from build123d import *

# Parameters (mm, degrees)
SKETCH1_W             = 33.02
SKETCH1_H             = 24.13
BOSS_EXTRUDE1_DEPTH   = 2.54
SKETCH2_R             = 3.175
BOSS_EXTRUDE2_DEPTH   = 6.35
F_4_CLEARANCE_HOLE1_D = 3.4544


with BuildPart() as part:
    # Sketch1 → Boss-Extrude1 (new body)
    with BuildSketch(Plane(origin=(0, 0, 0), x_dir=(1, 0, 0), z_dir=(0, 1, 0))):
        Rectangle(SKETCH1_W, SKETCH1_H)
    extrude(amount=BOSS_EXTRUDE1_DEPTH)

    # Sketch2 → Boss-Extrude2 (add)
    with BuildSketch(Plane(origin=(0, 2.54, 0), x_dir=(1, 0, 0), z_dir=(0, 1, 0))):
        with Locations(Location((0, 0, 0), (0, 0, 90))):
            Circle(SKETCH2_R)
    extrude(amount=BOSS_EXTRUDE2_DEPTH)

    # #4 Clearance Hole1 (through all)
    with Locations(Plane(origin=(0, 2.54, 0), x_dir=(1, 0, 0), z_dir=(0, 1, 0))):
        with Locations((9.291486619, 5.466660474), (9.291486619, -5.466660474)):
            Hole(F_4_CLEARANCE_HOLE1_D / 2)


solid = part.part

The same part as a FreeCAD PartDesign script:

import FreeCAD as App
import Part
import Sketcher

V = App.Vector
Q = App.Units.Quantity

doc = App.newDocument("Part")
body = doc.addObject("PartDesign::Body", "Body")

sketch1 = body.newObject("Sketcher::SketchObject", "Sketch")
sketch1.AttachmentSupport = (doc.getObject("XZ_Plane"), [""])
sketch1.MapMode = "FlatFace"
sketch1.addGeometry([
    Part.LineSegment(V(-17, -12, 0), V(-17, 12, 0)),
    Part.LineSegment(V(-17, 12, 0), V(17, 12, 0)),
    Part.LineSegment(V(17, 12, 0), V(17, -12, 0)),
    Part.LineSegment(V(17, -12, 0), V(-17, -12, 0)),
], False)
sketch1.addConstraint([
    Sketcher.Constraint("Coincident", 0, 2, 1, 1),
    Sketcher.Constraint("Coincident", 1, 2, 2, 1),
    Sketcher.Constraint("Coincident", 2, 2, 3, 1),
    Sketcher.Constraint("Coincident", 3, 2, 0, 1),
    Sketcher.Constraint("Vertical", 0),
    Sketcher.Constraint("Horizontal", 1),
    Sketcher.Constraint("Vertical", 2),
    Sketcher.Constraint("Horizontal", 3),
    Sketcher.Constraint("Symmetric", 0, 2, 2, 2, -1, 1),
    Sketcher.Constraint("DistanceX", 1, 1, 1, 2, Q("1.3 in")),
    Sketcher.Constraint("DistanceY", 0, 1, 0, 2, Q("0.95 in")),
])
pad1 = body.newObject("PartDesign::Pad", "Pad")
pad1.Profile = sketch1
pad1.Length = Q("0.1 in")
pad1.Reversed = True

sketch2 = body.newObject("Sketcher::SketchObject", "Sketch001")
sketch2.AttachmentSupport = (doc.getObject("XZ_Plane"), [""])
sketch2.MapMode = "FlatFace"
sketch2.AttachmentOffset = App.Placement(V(0, 0, -0.1 * 25.4), App.Rotation())
sketch2.addGeometry(Part.Circle(V(0, 0, 0), V(0, 0, 1), 3.2), False)
sketch2.addConstraint([
    Sketcher.Constraint("Coincident", 0, 3, -1, 1),
    Sketcher.Constraint("Diameter", 0, Q("0.25 in")),
])
pad2 = body.newObject("PartDesign::Pad", "Pad001")
pad2.Profile = sketch2
pad2.Length = Q("0.25 in")
pad2.Reversed = True

sketch3 = body.newObject("Sketcher::SketchObject", "Sketch002")
sketch3.AttachmentSupport = (doc.getObject("XZ_Plane"), [""])
sketch3.MapMode = "FlatFace"
sketch3.AttachmentOffset = App.Placement(V(0, 0, -0.1 * 25.4), App.Rotation())
sketch3.addGeometry([
    Part.Circle(V(9.3, -5.5, 0), V(0, 0, 1), 1.7),
    Part.Circle(V(9.3, 5.5, 0), V(0, 0, 1), 1.7),
], False)
sketch3.addConstraint([
    Sketcher.Constraint("Equal", 0, 1),
    Sketcher.Constraint("Symmetric", 0, 3, 1, 3, -1),
    Sketcher.Constraint("Diameter", 0, Q("0.136 in")),
    Sketcher.Constraint("DistanceY", 0, 3, -1, 1, Q("5.46666 mm")),
    Sketcher.Constraint("DistanceX", -1, 1, 0, 3, Q("9.291487 mm")),
])
doc.recompute()
hole = body.newObject("PartDesign::Hole", "Hole")
hole.Profile = sketch3
hole.ThreadType = "None"
hole.Diameter = Q("0.136 in")
hole.DepthType = "ThroughAll"
hole.Reversed = True

doc.recompute()
